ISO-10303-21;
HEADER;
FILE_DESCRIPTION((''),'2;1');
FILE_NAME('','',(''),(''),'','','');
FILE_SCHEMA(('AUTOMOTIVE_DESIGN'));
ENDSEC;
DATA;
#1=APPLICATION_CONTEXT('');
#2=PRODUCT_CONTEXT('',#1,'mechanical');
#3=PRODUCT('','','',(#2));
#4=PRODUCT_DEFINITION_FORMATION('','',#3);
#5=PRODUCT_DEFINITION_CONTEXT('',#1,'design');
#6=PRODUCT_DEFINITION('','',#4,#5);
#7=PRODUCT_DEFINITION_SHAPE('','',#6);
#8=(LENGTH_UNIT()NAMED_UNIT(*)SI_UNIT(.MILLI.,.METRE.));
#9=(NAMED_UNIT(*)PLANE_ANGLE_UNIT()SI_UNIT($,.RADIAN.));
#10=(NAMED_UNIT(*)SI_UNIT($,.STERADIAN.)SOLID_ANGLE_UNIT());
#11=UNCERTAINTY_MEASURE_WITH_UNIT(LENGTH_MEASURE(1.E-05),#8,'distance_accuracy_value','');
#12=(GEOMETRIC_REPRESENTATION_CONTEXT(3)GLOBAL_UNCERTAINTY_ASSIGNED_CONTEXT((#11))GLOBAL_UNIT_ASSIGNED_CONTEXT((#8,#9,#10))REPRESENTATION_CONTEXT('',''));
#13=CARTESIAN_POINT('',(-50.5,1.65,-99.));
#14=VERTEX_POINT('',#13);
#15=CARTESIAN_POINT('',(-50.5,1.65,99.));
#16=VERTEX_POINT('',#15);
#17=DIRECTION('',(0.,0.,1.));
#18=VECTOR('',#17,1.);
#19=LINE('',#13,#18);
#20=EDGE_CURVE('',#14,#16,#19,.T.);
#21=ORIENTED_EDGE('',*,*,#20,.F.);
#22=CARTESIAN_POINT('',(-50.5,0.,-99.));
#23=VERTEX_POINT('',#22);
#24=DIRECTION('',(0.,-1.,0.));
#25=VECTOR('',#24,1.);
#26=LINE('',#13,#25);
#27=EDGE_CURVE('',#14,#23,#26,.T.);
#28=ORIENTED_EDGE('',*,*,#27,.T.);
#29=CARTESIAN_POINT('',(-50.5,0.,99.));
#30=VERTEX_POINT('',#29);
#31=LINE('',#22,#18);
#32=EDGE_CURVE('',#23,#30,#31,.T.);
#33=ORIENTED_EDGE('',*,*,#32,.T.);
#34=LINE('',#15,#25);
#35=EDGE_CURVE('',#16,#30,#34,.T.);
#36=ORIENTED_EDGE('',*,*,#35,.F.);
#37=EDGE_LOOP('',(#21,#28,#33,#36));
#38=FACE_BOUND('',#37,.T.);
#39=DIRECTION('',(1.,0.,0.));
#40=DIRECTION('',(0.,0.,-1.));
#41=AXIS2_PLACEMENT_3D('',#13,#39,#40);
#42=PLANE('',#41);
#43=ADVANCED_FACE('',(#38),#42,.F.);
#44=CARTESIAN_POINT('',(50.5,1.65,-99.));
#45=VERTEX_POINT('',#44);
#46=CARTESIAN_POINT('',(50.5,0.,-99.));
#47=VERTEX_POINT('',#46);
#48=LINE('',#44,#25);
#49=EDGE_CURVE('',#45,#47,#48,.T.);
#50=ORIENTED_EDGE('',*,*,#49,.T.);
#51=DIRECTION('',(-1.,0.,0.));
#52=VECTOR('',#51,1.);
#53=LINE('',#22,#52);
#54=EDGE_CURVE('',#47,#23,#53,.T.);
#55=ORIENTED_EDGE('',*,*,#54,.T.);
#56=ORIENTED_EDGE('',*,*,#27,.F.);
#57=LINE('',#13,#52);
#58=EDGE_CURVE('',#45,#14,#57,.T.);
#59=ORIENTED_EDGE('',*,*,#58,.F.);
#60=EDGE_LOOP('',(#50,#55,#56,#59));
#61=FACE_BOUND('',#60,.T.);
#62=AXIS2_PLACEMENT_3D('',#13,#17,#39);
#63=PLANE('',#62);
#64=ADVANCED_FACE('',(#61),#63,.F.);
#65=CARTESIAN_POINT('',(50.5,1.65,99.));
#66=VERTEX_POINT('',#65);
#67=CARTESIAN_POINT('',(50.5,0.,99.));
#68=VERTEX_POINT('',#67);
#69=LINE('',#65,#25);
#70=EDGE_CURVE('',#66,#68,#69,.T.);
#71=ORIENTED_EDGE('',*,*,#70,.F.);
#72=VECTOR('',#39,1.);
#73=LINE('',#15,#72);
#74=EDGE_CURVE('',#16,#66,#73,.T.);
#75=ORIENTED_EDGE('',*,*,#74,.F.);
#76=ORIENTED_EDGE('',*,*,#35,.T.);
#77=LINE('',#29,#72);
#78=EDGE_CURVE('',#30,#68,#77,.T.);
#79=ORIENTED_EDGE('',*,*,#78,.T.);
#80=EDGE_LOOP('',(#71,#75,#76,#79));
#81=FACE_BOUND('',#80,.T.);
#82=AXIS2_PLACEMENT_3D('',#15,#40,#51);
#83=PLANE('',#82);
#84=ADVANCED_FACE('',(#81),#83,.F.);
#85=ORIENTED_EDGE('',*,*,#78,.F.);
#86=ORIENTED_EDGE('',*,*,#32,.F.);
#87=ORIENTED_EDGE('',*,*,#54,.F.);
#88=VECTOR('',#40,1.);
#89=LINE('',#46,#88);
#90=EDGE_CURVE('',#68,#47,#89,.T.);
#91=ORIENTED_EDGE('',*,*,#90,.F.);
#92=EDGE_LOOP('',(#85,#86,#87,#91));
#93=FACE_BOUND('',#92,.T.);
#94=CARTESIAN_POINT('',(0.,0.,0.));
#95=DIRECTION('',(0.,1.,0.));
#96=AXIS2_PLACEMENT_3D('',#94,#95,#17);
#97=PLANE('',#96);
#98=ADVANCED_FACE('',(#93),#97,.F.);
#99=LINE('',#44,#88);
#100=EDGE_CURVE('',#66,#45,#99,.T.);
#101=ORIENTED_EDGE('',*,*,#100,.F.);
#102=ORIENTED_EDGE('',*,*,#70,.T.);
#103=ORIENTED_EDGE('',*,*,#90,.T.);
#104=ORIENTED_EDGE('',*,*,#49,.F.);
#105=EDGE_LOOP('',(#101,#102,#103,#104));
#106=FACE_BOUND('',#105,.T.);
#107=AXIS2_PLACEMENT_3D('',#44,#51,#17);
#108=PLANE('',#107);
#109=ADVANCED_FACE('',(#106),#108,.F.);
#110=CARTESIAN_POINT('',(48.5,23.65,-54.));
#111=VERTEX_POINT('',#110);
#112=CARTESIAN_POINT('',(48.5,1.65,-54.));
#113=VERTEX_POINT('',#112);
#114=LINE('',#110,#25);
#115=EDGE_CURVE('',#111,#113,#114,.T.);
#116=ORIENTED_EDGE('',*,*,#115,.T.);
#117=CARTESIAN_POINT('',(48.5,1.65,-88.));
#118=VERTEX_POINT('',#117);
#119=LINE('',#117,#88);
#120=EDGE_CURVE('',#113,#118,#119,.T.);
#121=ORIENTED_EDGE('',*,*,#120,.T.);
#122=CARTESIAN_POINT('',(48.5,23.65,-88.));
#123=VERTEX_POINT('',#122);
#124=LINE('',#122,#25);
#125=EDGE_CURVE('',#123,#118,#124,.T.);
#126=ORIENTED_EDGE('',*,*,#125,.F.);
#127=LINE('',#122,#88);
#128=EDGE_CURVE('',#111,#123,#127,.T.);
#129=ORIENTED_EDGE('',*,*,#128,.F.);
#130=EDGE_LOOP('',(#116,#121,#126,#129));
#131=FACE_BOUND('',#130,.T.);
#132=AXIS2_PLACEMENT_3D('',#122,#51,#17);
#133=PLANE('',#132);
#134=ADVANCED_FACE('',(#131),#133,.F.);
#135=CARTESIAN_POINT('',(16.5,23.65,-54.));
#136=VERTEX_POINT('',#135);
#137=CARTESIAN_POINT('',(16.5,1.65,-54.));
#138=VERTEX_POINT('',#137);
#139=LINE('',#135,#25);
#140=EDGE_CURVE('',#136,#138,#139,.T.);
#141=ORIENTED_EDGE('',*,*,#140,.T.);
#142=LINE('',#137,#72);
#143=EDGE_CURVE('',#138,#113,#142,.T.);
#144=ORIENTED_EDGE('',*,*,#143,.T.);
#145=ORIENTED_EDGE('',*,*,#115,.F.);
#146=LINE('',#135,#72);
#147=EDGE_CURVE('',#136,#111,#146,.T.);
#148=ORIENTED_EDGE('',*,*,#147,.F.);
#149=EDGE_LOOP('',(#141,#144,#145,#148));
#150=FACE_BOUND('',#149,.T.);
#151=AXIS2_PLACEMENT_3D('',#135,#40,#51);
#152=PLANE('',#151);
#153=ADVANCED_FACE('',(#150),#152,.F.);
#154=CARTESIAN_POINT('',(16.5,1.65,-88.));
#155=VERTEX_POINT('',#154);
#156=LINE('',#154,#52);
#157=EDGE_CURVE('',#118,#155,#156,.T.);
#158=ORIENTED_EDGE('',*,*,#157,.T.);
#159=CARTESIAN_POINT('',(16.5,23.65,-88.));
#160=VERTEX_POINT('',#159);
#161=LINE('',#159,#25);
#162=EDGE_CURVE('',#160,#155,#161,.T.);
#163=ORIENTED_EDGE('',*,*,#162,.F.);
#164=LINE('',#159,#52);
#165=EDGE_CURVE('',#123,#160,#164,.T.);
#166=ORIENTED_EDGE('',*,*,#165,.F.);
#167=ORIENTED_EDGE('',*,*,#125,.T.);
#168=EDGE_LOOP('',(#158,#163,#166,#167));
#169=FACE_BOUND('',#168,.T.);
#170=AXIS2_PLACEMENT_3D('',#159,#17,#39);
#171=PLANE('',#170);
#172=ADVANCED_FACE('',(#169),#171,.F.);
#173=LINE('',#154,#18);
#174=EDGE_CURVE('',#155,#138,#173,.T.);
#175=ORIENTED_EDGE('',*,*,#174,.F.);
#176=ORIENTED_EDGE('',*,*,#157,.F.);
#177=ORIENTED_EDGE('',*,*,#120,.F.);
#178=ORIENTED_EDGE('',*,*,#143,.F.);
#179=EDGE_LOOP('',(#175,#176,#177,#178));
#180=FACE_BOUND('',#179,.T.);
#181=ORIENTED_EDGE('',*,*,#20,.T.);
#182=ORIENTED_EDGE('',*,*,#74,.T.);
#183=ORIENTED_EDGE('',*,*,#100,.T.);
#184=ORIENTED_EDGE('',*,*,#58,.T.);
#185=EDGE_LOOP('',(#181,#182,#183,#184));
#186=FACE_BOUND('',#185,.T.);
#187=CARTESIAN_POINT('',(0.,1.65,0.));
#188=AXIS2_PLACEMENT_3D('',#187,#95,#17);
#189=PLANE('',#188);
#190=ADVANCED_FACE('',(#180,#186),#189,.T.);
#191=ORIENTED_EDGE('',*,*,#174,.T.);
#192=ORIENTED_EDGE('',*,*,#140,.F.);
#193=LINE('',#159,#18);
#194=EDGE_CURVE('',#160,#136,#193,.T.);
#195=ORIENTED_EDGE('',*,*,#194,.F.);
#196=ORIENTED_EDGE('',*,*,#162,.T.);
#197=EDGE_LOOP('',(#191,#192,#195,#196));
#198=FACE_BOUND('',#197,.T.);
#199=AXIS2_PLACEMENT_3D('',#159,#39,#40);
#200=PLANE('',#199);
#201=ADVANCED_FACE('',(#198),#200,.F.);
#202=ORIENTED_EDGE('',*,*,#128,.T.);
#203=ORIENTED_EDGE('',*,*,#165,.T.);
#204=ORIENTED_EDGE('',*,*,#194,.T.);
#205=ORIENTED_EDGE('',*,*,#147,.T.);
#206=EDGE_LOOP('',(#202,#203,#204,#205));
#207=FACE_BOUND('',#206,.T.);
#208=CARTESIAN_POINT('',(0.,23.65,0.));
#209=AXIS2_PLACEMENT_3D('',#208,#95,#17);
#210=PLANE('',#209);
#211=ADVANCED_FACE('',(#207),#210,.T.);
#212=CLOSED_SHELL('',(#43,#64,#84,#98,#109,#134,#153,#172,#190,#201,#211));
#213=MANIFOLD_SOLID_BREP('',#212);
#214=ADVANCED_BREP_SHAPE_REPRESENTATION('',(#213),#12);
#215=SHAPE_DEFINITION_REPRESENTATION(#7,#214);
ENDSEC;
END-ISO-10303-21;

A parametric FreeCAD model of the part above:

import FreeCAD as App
import Part
import Sketcher

V = App.Vector
Q = App.Units.Quantity


def add_polygon(sketch, points):
    """Adds a closed chain of lines whose ends are joined by coincident constraints."""
    first, n = sketch.GeometryCount, len(points)
    for a, b in zip(points, points[1:] + points[:1]):
        sketch.addGeometry(Part.LineSegment(App.Vector(*a, 0), App.Vector(*b, 0)), False)
    for i in range(n):
        sketch.addConstraint(Sketcher.Constraint("Coincident", first + i, 2, first + (i + 1) % n, 1))

doc = App.newDocument("Part")
body = doc.addObject("PartDesign::Body", "Body")

# Sketch on XZ plane
sketch1 = body.newObject("Sketcher::SketchObject", "Sketch")
sketch1.AttachmentSupport = (doc.getObject("XZ_Plane"), [""])
sketch1.MapMode = "FlatFace"
add_polygon(sketch1, [(-50, -99), (-50, 99), (50, 99), (50, -99)])  # lines 0-3
sketch1.addConstraint([
    Sketcher.Constraint("Vertical", 0),
    Sketcher.Constraint("Horizontal", 1),
    Sketcher.Constraint("Vertical", 2),
    Sketcher.Constraint("Horizontal", 3),
    Sketcher.Constraint("Symmetric", 0, 2, 2, 2, -1, 1),
    Sketcher.Constraint("DistanceX", 1, 1, 1, 2, Q("101 mm")),
    Sketcher.Constraint("DistanceY", 0, 1, 0, 2, Q("198 mm")),
])
pad1 = body.newObject("PartDesign::Pad", "Pad")
pad1.Profile = sketch1
pad1.Length = 1.65
pad1.Reversed = True

# Sketch on XZ plane
sketch2 = body.newObject("Sketcher::SketchObject", "Sketch001")
sketch2.AttachmentSupport = (doc.getObject("XZ_Plane"), [""])
sketch2.MapMode = "FlatFace"
sketch2.AttachmentOffset = App.Placement(V(0, 0, -1.65), App.Rotation())
add_polygon(sketch2, [(16, -88), (16, -54), (48, -54), (48, -88)])  # lines 0-3
sketch2.addConstraint([
    Sketcher.Constraint("Vertical", 0),
    Sketcher.Constraint("Horizontal", 1),
    Sketcher.Constraint("Vertical", 2),
    Sketcher.Constraint("Horizontal", 3),
    Sketcher.Constraint("DistanceX", 1, 1, 1, 2, Q("32 mm")),
    Sketcher.Constraint("DistanceY", 0, 1, 0, 2, Q("34 mm")),
    Sketcher.Constraint("DistanceY", 0, 2, -1, 1, Q("54 mm")),
    Sketcher.Constraint("DistanceX", -1, 1, 0, 2, Q("16.5 mm")),
])
pad2 = body.newObject("PartDesign::Pad", "Pad001")
pad2.Profile = sketch2
pad2.Length = 22
pad2.Reversed = True

doc.recompute()
